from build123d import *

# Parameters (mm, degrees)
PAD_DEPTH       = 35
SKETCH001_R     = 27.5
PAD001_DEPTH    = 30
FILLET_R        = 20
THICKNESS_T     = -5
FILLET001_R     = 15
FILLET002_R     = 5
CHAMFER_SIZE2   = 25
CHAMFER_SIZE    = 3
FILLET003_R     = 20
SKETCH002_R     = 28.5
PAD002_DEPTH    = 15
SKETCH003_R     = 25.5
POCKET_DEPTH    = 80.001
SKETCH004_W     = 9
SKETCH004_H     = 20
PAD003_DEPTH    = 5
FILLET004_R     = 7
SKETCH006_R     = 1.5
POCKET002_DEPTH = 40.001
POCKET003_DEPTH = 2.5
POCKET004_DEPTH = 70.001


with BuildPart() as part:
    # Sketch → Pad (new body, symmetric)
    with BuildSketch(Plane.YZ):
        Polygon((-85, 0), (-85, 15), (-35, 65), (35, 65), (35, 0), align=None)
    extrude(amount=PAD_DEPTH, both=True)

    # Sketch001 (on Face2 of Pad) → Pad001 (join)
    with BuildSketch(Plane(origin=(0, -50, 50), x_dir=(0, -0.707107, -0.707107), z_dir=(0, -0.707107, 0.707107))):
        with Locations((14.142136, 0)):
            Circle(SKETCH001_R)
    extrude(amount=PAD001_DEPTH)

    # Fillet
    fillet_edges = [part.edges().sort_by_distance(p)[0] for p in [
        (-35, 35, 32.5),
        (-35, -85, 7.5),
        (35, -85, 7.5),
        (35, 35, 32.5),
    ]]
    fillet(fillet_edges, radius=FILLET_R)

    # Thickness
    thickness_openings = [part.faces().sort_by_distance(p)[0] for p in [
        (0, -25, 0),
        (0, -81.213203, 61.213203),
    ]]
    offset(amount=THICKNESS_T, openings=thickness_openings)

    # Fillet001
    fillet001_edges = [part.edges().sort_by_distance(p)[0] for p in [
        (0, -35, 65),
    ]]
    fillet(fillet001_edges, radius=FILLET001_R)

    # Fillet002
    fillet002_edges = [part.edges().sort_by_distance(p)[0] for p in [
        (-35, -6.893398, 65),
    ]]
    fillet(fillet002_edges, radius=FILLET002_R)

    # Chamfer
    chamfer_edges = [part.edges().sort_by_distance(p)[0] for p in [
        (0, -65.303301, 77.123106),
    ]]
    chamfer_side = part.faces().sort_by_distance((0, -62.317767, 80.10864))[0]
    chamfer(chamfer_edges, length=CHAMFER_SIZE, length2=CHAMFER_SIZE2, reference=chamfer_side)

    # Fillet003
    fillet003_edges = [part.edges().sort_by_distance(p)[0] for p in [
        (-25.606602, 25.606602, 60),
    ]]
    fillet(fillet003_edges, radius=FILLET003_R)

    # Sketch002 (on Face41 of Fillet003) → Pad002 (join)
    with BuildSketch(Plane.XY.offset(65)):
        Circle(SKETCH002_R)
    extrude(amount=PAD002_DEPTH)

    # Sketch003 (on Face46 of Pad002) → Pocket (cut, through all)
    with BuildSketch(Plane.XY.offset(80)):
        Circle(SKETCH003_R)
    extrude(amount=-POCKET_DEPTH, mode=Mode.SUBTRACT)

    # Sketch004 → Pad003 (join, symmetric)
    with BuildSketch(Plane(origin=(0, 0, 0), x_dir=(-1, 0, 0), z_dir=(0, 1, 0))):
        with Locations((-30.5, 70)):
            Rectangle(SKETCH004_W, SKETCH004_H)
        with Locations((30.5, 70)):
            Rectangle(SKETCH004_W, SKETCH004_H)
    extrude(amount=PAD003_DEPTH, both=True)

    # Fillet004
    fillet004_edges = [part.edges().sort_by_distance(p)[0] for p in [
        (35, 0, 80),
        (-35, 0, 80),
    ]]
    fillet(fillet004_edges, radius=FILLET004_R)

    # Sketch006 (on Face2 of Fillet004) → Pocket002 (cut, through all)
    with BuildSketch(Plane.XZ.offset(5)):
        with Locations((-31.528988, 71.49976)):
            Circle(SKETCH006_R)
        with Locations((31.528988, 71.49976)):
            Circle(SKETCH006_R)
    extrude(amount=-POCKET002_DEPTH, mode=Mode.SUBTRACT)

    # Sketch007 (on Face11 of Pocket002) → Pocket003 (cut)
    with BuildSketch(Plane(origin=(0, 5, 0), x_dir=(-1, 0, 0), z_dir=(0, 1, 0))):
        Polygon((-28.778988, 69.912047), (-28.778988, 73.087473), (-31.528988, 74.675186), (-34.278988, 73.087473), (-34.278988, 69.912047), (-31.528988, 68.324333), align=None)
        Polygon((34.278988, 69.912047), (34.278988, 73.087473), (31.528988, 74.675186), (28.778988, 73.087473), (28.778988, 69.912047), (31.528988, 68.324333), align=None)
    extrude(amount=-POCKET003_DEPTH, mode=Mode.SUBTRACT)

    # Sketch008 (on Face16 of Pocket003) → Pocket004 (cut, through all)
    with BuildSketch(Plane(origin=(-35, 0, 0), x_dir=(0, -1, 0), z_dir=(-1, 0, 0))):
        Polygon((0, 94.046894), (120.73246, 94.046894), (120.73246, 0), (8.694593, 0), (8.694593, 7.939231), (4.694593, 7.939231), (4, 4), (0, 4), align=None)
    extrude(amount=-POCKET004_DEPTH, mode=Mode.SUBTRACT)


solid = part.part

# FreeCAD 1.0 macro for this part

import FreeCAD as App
import Part
import Sketcher
Q = App.Units.Quantity


def edges_at(feature, points):
    """Names of the edges that pass closest to the given points."""
    edges = feature.Shape.Edges
    near = lambda p: min(range(len(edges)), key=lambda i: edges[i].distToShape(Part.Vertex(*p))[0])
    return sorted({f"Edge{near(p) + 1}" for p in points})


def faces_at(feature, points):
    """Names of the faces that lie closest to the given points."""
    faces = feature.Shape.Faces
    near = lambda p: min(range(len(faces)), key=lambda i: faces[i].distToShape(Part.Vertex(*p))[0])
    return sorted({f"Face{near(p) + 1}" for p in points})

doc = App.newDocument("Part")
body = doc.addObject("PartDesign::Body", "Body")

# Sketch on YZ plane
sketch1 = body.newObject("Sketcher::SketchObject", "Sketch")
sketch1.AttachmentSupport = (doc.getObject("YZ_Plane"), [""])
sketch1.MapMode = "FlatFace"
sketch1.addGeometry([
    Part.LineSegment(App.Vector(-85, 15, 0), App.Vector(-85, 0, 0)),  # 0
    Part.LineSegment(App.Vector(-85, 0, 0), App.Vector(35, 0, 0)),  # 1
    Part.LineSegment(App.Vector(35, 0, 0), App.Vector(35, 65, 0)),  # 2
    Part.LineSegment(App.Vector(35, 65, 0), App.Vector(-35, 65, 0)),  # 3
    Part.LineSegment(App.Vector(-35, 65, 0), App.Vector(-85, 15, 0)),  # 4
], False)
sketch1.addConstraint([
    Sketcher.Constraint("Coincident", 0, 2, 1, 1),
    Sketcher.Constraint("Coincident", 1, 2, 2, 1),
    Sketcher.Constraint("Coincident", 2, 2, 3, 1),
    Sketcher.Constraint("Coincident", 3, 2, 4, 1),
    Sketcher.Constraint("Coincident", 4, 2, 0, 1),
    Sketcher.Constraint("Vertical", 0),
    Sketcher.Constraint("Horizontal", 1),
    Sketcher.Constraint("Vertical", 2),
    Sketcher.Constraint("Horizontal", 3),
    Sketcher.Constraint("PointOnObject", 0, 2, -1),
    Sketcher.Constraint("DistanceX", 1, 1, 1, 2, 120.0),
    Sketcher.Constraint("DistanceX", 3, 2, 3, 1, 70.0),
    Sketcher.Constraint("DistanceY", 0, 2, 0, 1, 15.0),
    Sketcher.Constraint("DistanceY", 2, 1, 2, 2, 65.0),
    Sketcher.Constraint("DistanceX", 0, 2, -1, 1, 85.0),
])
pad1 = body.newObject("PartDesign::Pad", "Pad")
pad1.Profile = sketch1
pad1.Length = 70
pad1.Midplane = True

# Sketch on an angled plane
sketch2 = body.newObject("Sketcher::SketchObject", "Sketch001")
sketch2.Placement = App.Placement(App.Vector(0, -50, 50), App.Rotation(App.Vector(0, -0.707106781, -0.707106781), App.Vector(0.999999999, 0, 0), App.Vector(0, -0.707106781, 0.707106781), "ZXY"))
sketch2.addGeometry(Part.Circle(App.Vector(14, 0, 0), App.Vector(0, 0, 1), 28), False)
sketch2.addConstraint([
    Sketcher.Constraint("PointOnObject", 0, 3, -1),
    Sketcher.Constraint("Diameter", 0, 55.0),
    Sketcher.Constraint("DistanceX", -1, 1, 0, 3, 14.142136),
])
pad2 = body.newObject("PartDesign::Pad", "Pad001")
pad2.Profile = sketch2
pad2.Length = 30
doc.recompute()

fillet = body.newObject("PartDesign::Fillet", "Fillet")
fillet.Base = (pad2, edges_at(pad2, [
    (-35, 35, 32.5),
    (-35, -85, 7.5),
    (35, -85, 7.5),
    (35, 35, 32.5),
]))
fillet.Radius = 20
doc.recompute()

thickness = body.newObject("PartDesign::Thickness", "Thickness")
thickness.Base = (fillet, faces_at(fillet, [(0, -25, 0), (0, -81.213, 61.213)]))
thickness.Value = 5
thickness.Reversed = True
thickness.Join = "Arc"
doc.recompute()

fillet2 = body.newObject("PartDesign::Fillet", "Fillet001")
fillet2.Base = (thickness, edges_at(thickness, [(0, -35, 65)]))
fillet2.Radius = 15
doc.recompute()

fillet3 = body.newObject("PartDesign::Fillet", "Fillet002")
fillet3.Base = (fillet2, edges_at(fillet2, [(-35, -6.893, 65)]))
fillet3.Radius = 5
doc.recompute()

chamfer = body.newObject("PartDesign::Chamfer", "Chamfer")
chamfer.Base = (fillet3, edges_at(fillet3, [(0, -65.303, 77.123)]))
chamfer.ChamferType = "Two distances"
chamfer.Size = 3
chamfer.Size2 = 25
doc.recompute()

fillet4 = body.newObject("PartDesign::Fillet", "Fillet003")
fillet4.Base = (chamfer, edges_at(chamfer, [(-25.607, 25.607, 60)]))
fillet4.Radius = 20

# Sketch on XY plane
sketch3 = body.newObject("Sketcher::SketchObject", "Sketch002")
sketch3.AttachmentSupport = (doc.getObject("XY_Plane"), [""])
sketch3.MapMode = "FlatFace"
sketch3.AttachmentOffset = App.Placement(App.Vector(0, 0, 65), App.Rotation())
sketch3.addGeometry(Part.Circle(App.Vector(0, 0, 0), App.Vector(0, 0, 1), 28), False)
sketch3.addConstraint([
    Sketcher.Constraint("Coincident", 0, 3, -1, 1),
    Sketcher.Constraint("Diameter", 0, 57.0),
])
pad3 = body.newObject("PartDesign::Pad", "Pad002")
pad3.Profile = sketch3
pad3.Length = 15

# Sketch on XY plane
sketch4 = body.newObject("Sketcher::SketchObject", "Sketch003")
sketch4.AttachmentSupport = (doc.getObject("XY_Plane"), [""])
sketch4.MapMode = "FlatFace"
sketch4.AttachmentOffset = App.Placement(App.Vector(0, 0, 80), App.Rotation())
sketch4.addGeometry(Part.Circle(App.Vector(0, 0, 0), App.Vector(0, 0, 1), 26), False)
sketch4.addConstraint([
    Sketcher.Constraint("Coincident", 0, 3, -1, 1),
    Sketcher.Constraint("Diameter", 0, 51.0),
])
pocket1 = body.newObject("PartDesign::Pocket", "Pocket")
pocket1.Profile = sketch4
pocket1.Type = "ThroughAll"

# Sketch on XZ plane
sketch5 = body.newObject("Sketcher::SketchObject", "Sketch004")
sketch5.AttachmentSupport = (doc.getObject("XZ_Plane"), [""])
sketch5.MapMode = "FlatFace"
sketch5.addGeometry([
    Part.LineSegment(App.Vector(35, 80, 0), App.Vector(35, 60, 0)),  # 0
    Part.LineSegment(App.Vector(35, 60, 0), App.Vector(26, 60, 0)),  # 1
    Part.LineSegment(App.Vector(26, 60, 0), App.Vector(26, 80, 0)),  # 2
    Part.LineSegment(App.Vector(26, 80, 0), App.Vector(35, 80, 0)),  # 3
    Part.LineSegment(App.Vector(-26, 80, 0), App.Vector(-26, 60, 0)),  # 4
    Part.LineSegment(App.Vector(-26, 60, 0), App.Vector(-35, 60, 0)),  # 5
    Part.LineSegment(App.Vector(-35, 60, 0), App.Vector(-35, 80, 0)),  # 6
    Part.LineSegment(App.Vector(-35, 80, 0), App.Vector(-26, 80, 0)),  # 7
], False)
sketch5.addConstraint([
    Sketcher.Constraint("Coincident", 0, 2, 1, 1),
    Sketcher.Constraint("Coincident", 1, 2, 2, 1),
    Sketcher.Constraint("Coincident", 2, 2, 3, 1),
    Sketcher.Constraint("Coincident", 3, 2, 0, 1),
    Sketcher.Constraint("Coincident", 4, 2, 5, 1),
    Sketcher.Constraint("Coincident", 5, 2, 6, 1),
    Sketcher.Constraint("Coincident", 6, 2, 7, 1),
    Sketcher.Constraint("Coincident", 7, 2, 4, 1),
    Sketcher.Constraint("Vertical", 0),
    Sketcher.Constraint("Horizontal", 1),
    Sketcher.Constraint("Vertical", 2),
    Sketcher.Constraint("Horizontal", 3),
    Sketcher.Constraint("Vertical", 4),
    Sketcher.Constraint("Horizontal", 5),
    Sketcher.Constraint("Vertical", 6),
    Sketcher.Constraint("Horizontal", 7),
    Sketcher.Constraint("Symmetric", 1, 2, 4, 2, -2),
    Sketcher.Constraint("Symmetric", 3, 2, 6, 2, -2),
    Sketcher.Constraint("DistanceX", 1, 2, 1, 1, 9.0),
    Sketcher.Constraint("DistanceY", 0, 2, 0, 1, 20.0),
    Sketcher.Constraint("DistanceX", -1, 1, 0, 2, 35.0),
    Sketcher.Constraint("DistanceY", -1, 1, 0, 2, 60.0),
])
pad4 = body.newObject("PartDesign::Pad", "Pad003")
pad4.Profile = sketch5
pad4.Length = 10
pad4.Midplane = True
doc.recompute()

fillet5 = body.newObject("PartDesign::Fillet", "Fillet004")
fillet5.Base = (pad4, edges_at(pad4, [(35, 0, 80), (-35, 0, 80)]))
fillet5.Radius = 7

# Sketch on XZ plane
sketch6 = body.newObject("Sketcher::SketchObject", "Sketch005")
sketch6.AttachmentSupport = (doc.getObject("XZ_Plane"), [""])
sketch6.MapMode = "FlatFace"
sketch6.AttachmentOffset = App.Placement(App.Vector(0, 0, 5), App.Rotation())
sketch6.addGeometry([
    Part.Circle(App.Vector(-31.5, 71.5, 0), App.Vector(0, 0, 1), 1.5),
    Part.Circle(App.Vector(31.5, 71.5, 0), App.Vector(0, 0, 1), 1.5),
], False)
sketch6.addConstraint([
    Sketcher.Constraint("Equal", 0, 1),
    Sketcher.Constraint("Symmetric", 0, 3, 1, 3, -2),
    Sketcher.Constraint("Diameter", 0, 3.0),
    Sketcher.Constraint("DistanceY", -1, 1, 0, 3, 71.49976),
    Sketcher.Constraint("DistanceX", 0, 3, -1, 1, 31.528988),
])
pocket2 = body.newObject("PartDesign::Pocket", "Pocket001")
pocket2.Profile = sketch6
pocket2.Type = "ThroughAll"

# Sketch on XZ plane
sketch7 = body.newObject("Sketcher::SketchObject", "Sketch006")
sketch7.AttachmentSupport = (doc.getObject("XZ_Plane"), [""])
sketch7.MapMode = "FlatFace"
sketch7.AttachmentOffset = App.Placement(App.Vector(0, 0, -5), App.Rotation())
sketch7.addGeometry([
    Part.LineSegment(App.Vector(28.8, 69.9, 0), App.Vector(28.8, 73.1, 0)),  # 0
    Part.LineSegment(App.Vector(28.8, 73.1, 0), App.Vector(31.5, 74.7, 0)),  # 1
    Part.LineSegment(App.Vector(31.5, 74.7, 0), App.Vector(34.3, 73.1, 0)),  # 2
    Part.LineSegment(App.Vector(34.3, 73.1, 0), App.Vector(34.3, 69.9, 0)),  # 3
    Part.LineSegment(App.Vector(34.3, 69.9, 0), App.Vector(31.5, 68.3, 0)),  # 4
    Part.LineSegment(App.Vector(31.5, 68.3, 0), App.Vector(28.8, 69.9, 0)),  # 5
    Part.LineSegment(App.Vector(-34.3, 69.9, 0), App.Vector(-34.3, 73.1, 0)),  # 6
    Part.LineSegment(App.Vector(-34.3, 73.1, 0), App.Vector(-31.5, 74.7, 0)),  # 7
    Part.LineSegment(App.Vector(-31.5, 74.7, 0), App.Vector(-28.8, 73.1, 0)),  # 8
    Part.LineSegment(App.Vector(-28.8, 73.1, 0), App.Vector(-28.8, 69.9, 0)),  # 9
    Part.LineSegment(App.Vector(-28.8, 69.9, 0), App.Vector(-31.5, 68.3, 0)),  # 10
    Part.LineSegment(App.Vector(-31.5, 68.3, 0), App.Vector(-34.3, 69.9, 0)),  # 11
], False)
sketch7.addConstraint([
    Sketcher.Constraint("Coincident", 0, 2, 1, 1),
    Sketcher.Constraint("Coincident", 1, 2, 2, 1),
    Sketcher.Constraint("Coincident", 2, 2, 3, 1),
    Sketcher.Constraint("Coincident", 3, 2, 4, 1),
    Sketcher.Constraint("Coincident", 4, 2, 5, 1),
    Sketcher.Constraint("Coincident", 5, 2, 0, 1),
    Sketcher.Constraint("Coincident", 6, 2, 7, 1),
    Sketcher.Constraint("Coincident", 7, 2, 8, 1),
    Sketcher.Constraint("Coincident", 8, 2, 9, 1),
    Sketcher.Constraint("Coincident", 9, 2, 10, 1),
    Sketcher.Constraint("Coincident", 10, 2, 11, 1),
    Sketcher.Constraint("Coincident", 11, 2, 6, 1),
    Sketcher.Constraint("Vertical", 0),
    Sketcher.Constraint("Vertical", 3),
    Sketcher.Constraint("Vertical", 6),
    Sketcher.Constraint("Vertical", 9),
    Sketcher.Constraint("Symmetric", 2, 2, 6, 2, -2),
    Sketcher.Constraint("Symmetric", 1, 2, 7, 2, -2),
    Sketcher.Constraint("Symmetric", 0, 2, 8, 2, -2),
    Sketcher.Constraint("Symmetric", 4, 2, 10, 2, -2),
    Sketcher.Constraint("Parallel", 1, 4),
    Sketcher.Constraint("Parallel", 2, 5),
    Sketcher.Constraint("Parallel", 4, 7),
    Sketcher.Constraint("Parallel", 7, 10),
    Sketcher.Constraint("Parallel", 8, 11),
    Sketcher.Constraint("Horizontal", 0, 2, 2, 2),
    Sketcher.Constraint("Horizontal", 3, 2, 5, 2),
    Sketcher.Constraint("Angle", 1, Q("29.999996 deg")),
    Sketcher.Constraint("DistanceX", 0, 2, 2, 2, 5.5),
    Sketcher.Constraint("DistanceY", 0, 1, 0, 2, 3.175426),
    Sketcher.Constraint("DistanceX", -1, 1, 0, 2, 28.778988),
    Sketcher.Constraint("DistanceY", -1, 1, 0, 2, 73.087473),
])
pocket3 = body.newObject("PartDesign::Pocket", "Pocket002")
pocket3.Profile = sketch7
pocket3.Length = 2.5
pocket3.Reversed = True

# Sketch on YZ plane
sketch8 = body.newObject("Sketcher::SketchObject", "Sketch007")
sketch8.AttachmentSupport = (doc.getObject("YZ_Plane"), [""])
sketch8.MapMode = "FlatFace"
sketch8.AttachmentOffset = App.Placement(App.Vector(0, 0, -35), App.Rotation())
sketch8.addGeometry([
    Part.LineSegment(App.Vector(-120.7, 94, 0), App.Vector(0, 94, 0)),  # 0
    Part.LineSegment(App.Vector(0, 94, 0), App.Vector(0, 4, 0)),  # 1
    Part.LineSegment(App.Vector(0, 4, 0), App.Vector(-4, 4, 0)),  # 2
    Part.LineSegment(App.Vector(-4, 4, 0), App.Vector(-4.7, 7.9, 0)),  # 3
    Part.LineSegment(App.Vector(-4.7, 7.9, 0), App.Vector(-8.7, 7.9, 0)),  # 4
    Part.LineSegment(App.Vector(-8.7, 7.9, 0), App.Vector(-8.7, 0, 0)),  # 5
    Part.LineSegment(App.Vector(-8.7, 0, 0), App.Vector(-120.7, 0, 0)),  # 6
    Part.LineSegment(App.Vector(-120.7, 0, 0), App.Vector(-120.7, 94, 0)),  # 7
], False)
sketch8.addConstraint([
    Sketcher.Constraint("Coincident", 0, 2, 1, 1),
    Sketcher.Constraint("Coincident", 1, 2, 2, 1),
    Sketcher.Constraint("Coincident", 2, 2, 3, 1),
    Sketcher.Constraint("Coincident", 3, 2, 4, 1),
    Sketcher.Constraint("Coincident", 4, 2, 5, 1),
    Sketcher.Constraint("Coincident", 5, 2, 6, 1),
    Sketcher.Constraint("Coincident", 6, 2, 7, 1),
    Sketcher.Constraint("Coincident", 7, 2, 0, 1),
    Sketcher.Constraint("Horizontal", 0),
    Sketcher.Constraint("Vertical", 1),
    Sketcher.Constraint("Horizontal", 2),
    Sketcher.Constraint("Horizontal", 4),
    Sketcher.Constraint("Vertical", 5),
    Sketcher.Constraint("Horizontal", 6),
    Sketcher.Constraint("Vertical", 7),
    Sketcher.Constraint("PointOnObject", 0, 2, -2),
    Sketcher.Constraint("PointOnObject", 5, 2, -1),
    Sketcher.Constraint("Equal", 2, 4),
    Sketcher.Constraint("DistanceX", 2, 2, 2, 1, 4.0),
    Sketcher.Constraint("Angle", 3, Q("100.000004 deg")),
    Sketcher.Constraint("Distance", 3, 4.0),
    Sketcher.Constraint("DistanceY", -1, 1, 1, 2, 4.0),
    Sketcher.Constraint("DistanceX", 0, 1, 0, 2, 120.73246),
    Sketcher.Constraint("DistanceY", 1, 2, 1, 1, 90.046894),
])
pocket4 = body.newObject("PartDesign::Pocket", "Pocket003")
pocket4.Profile = sketch8
pocket4.Type = "ThroughAll"
pocket4.Reversed = True

doc.recompute()
